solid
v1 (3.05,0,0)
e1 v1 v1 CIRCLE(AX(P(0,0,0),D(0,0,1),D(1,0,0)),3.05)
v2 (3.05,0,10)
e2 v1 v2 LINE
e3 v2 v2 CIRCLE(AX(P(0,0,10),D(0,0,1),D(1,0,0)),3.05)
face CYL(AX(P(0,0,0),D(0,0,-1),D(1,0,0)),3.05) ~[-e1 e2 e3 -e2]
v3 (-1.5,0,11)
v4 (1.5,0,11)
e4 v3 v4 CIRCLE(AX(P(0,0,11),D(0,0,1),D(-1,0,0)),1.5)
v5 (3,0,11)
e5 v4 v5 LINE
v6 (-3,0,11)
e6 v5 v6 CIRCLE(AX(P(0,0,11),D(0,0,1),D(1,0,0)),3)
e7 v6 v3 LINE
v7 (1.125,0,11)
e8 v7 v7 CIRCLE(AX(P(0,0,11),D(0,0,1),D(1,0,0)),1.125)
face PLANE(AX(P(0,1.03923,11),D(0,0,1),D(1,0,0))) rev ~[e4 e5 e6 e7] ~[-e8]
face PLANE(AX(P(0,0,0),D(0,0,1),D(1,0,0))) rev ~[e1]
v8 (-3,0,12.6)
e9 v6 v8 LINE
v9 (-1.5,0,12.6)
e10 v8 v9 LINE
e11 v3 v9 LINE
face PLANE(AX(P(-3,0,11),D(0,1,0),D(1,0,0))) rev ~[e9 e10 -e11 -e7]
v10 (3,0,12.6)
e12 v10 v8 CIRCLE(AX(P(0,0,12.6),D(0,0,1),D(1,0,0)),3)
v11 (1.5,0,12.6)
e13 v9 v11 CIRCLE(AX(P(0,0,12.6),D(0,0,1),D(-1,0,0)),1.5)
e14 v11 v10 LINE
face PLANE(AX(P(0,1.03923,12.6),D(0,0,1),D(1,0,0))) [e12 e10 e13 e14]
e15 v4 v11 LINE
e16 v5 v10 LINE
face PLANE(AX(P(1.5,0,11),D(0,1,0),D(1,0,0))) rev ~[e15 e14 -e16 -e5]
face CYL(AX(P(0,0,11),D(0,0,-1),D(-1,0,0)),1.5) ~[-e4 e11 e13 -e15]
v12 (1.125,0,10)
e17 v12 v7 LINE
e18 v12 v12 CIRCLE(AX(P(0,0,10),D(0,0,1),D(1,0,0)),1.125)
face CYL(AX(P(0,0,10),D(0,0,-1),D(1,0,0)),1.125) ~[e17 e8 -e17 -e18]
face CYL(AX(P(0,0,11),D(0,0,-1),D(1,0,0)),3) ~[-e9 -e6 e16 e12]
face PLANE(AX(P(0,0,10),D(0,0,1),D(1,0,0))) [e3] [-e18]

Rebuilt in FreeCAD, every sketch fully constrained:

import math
import FreeCAD as App
import Part
import Sketcher

doc = App.newDocument("Part")
body = doc.addObject("PartDesign::Body", "Body")

sketch1 = doc.addObject("Sketcher::SketchObject", "Sketch")
body.addObject(sketch1)
sketch1.AttachmentSupport = (doc.XY_Plane, [""])
sketch1.MapMode = "FlatFace"
sketch1.addGeometry(Part.Circle(App.Vector(0, 0, 0), App.Vector(0, 0, 1), 3), False)
sketch1.addConstraint([
    Sketcher.Constraint("Coincident", 0, 3, -1, 1),
    Sketcher.Constraint("Diameter", 0, 6.1),
])
pad1 = doc.addObject("PartDesign::Pad", "Pad")
body.addObject(pad1)
pad1.Profile = sketch1
pad1.Length = 10

sketch2 = doc.addObject("Sketcher::SketchObject", "Sketch001")
body.addObject(sketch2)
sketch2.AttachmentSupport = (doc.XY_Plane, [""])
sketch2.MapMode = "FlatFace"
sketch2.AttachmentOffset = App.Placement(App.Vector(0, 0, 10), App.Rotation())
sketch2.addGeometry(Part.Circle(App.Vector(0, 0, 0), App.Vector(0, 0, 1), 1.1), False)
sketch2.addConstraint([
    Sketcher.Constraint("Coincident", 0, 3, -1, 1),
    Sketcher.Constraint("Diameter", 0, 2.25),
])
pad2 = doc.addObject("PartDesign::Pad", "Pad001")
body.addObject(pad2)
pad2.Profile = sketch2
pad2.Length = 1

sketch3 = doc.addObject("Sketcher::SketchObject", "Sketch002")
body.addObject(sketch3)
sketch3.AttachmentSupport = (doc.XY_Plane, [""])
sketch3.MapMode = "FlatFace"
sketch3.AttachmentOffset = App.Placement(App.Vector(0, 0, 11), App.Rotation())
sketch3.addGeometry([
    Part.ArcOfCircle(Part.Circle(App.Vector(0, 0, 0), App.Vector(0, 0, 1), 3), math.radians(0), math.radians(180)),
    Part.LineSegment(App.Vector(-3, 0, 0), App.Vector(-1.5, 0, 0)),
    Part.ArcOfCircle(Part.Circle(App.Vector(0, 0, 0), App.Vector(0, 0, 1), 1.5), math.radians(180), math.radians(360)),
    Part.LineSegment(App.Vector(1.5, 0, 0), App.Vector(3, 0, 0)),
], False)
sketch3.addConstraint([
    Sketcher.Constraint("Coincident", 0, 2, 1, 1),
    Sketcher.Constraint("Coincident", 1, 2, 2, 1),
    Sketcher.Constraint("Coincident", 2, 2, 3, 1),
    Sketcher.Constraint("Coincident", 3, 2, 0, 1),
    Sketcher.Constraint("Horizontal", 1),
    Sketcher.Constraint("Horizontal", 3),
    Sketcher.Constraint("Coincident", 0, 3, -1, 1),
    Sketcher.Constraint("Coincident", 2, 3, -1, 1),
    Sketcher.Constraint("PointOnObject", 0, 2, -1),
    Sketcher.Constraint("PointOnObject", 2, 2, -1),
    Sketcher.Constraint("Radius", 0, 3.0),
    Sketcher.Constraint("Radius", 2, 1.5),
])
pad3 = doc.addObject("PartDesign::Pad", "Pad002")
body.addObject(pad3)
pad3.Profile = sketch3
pad3.Length = 1.6

doc.recompute()
